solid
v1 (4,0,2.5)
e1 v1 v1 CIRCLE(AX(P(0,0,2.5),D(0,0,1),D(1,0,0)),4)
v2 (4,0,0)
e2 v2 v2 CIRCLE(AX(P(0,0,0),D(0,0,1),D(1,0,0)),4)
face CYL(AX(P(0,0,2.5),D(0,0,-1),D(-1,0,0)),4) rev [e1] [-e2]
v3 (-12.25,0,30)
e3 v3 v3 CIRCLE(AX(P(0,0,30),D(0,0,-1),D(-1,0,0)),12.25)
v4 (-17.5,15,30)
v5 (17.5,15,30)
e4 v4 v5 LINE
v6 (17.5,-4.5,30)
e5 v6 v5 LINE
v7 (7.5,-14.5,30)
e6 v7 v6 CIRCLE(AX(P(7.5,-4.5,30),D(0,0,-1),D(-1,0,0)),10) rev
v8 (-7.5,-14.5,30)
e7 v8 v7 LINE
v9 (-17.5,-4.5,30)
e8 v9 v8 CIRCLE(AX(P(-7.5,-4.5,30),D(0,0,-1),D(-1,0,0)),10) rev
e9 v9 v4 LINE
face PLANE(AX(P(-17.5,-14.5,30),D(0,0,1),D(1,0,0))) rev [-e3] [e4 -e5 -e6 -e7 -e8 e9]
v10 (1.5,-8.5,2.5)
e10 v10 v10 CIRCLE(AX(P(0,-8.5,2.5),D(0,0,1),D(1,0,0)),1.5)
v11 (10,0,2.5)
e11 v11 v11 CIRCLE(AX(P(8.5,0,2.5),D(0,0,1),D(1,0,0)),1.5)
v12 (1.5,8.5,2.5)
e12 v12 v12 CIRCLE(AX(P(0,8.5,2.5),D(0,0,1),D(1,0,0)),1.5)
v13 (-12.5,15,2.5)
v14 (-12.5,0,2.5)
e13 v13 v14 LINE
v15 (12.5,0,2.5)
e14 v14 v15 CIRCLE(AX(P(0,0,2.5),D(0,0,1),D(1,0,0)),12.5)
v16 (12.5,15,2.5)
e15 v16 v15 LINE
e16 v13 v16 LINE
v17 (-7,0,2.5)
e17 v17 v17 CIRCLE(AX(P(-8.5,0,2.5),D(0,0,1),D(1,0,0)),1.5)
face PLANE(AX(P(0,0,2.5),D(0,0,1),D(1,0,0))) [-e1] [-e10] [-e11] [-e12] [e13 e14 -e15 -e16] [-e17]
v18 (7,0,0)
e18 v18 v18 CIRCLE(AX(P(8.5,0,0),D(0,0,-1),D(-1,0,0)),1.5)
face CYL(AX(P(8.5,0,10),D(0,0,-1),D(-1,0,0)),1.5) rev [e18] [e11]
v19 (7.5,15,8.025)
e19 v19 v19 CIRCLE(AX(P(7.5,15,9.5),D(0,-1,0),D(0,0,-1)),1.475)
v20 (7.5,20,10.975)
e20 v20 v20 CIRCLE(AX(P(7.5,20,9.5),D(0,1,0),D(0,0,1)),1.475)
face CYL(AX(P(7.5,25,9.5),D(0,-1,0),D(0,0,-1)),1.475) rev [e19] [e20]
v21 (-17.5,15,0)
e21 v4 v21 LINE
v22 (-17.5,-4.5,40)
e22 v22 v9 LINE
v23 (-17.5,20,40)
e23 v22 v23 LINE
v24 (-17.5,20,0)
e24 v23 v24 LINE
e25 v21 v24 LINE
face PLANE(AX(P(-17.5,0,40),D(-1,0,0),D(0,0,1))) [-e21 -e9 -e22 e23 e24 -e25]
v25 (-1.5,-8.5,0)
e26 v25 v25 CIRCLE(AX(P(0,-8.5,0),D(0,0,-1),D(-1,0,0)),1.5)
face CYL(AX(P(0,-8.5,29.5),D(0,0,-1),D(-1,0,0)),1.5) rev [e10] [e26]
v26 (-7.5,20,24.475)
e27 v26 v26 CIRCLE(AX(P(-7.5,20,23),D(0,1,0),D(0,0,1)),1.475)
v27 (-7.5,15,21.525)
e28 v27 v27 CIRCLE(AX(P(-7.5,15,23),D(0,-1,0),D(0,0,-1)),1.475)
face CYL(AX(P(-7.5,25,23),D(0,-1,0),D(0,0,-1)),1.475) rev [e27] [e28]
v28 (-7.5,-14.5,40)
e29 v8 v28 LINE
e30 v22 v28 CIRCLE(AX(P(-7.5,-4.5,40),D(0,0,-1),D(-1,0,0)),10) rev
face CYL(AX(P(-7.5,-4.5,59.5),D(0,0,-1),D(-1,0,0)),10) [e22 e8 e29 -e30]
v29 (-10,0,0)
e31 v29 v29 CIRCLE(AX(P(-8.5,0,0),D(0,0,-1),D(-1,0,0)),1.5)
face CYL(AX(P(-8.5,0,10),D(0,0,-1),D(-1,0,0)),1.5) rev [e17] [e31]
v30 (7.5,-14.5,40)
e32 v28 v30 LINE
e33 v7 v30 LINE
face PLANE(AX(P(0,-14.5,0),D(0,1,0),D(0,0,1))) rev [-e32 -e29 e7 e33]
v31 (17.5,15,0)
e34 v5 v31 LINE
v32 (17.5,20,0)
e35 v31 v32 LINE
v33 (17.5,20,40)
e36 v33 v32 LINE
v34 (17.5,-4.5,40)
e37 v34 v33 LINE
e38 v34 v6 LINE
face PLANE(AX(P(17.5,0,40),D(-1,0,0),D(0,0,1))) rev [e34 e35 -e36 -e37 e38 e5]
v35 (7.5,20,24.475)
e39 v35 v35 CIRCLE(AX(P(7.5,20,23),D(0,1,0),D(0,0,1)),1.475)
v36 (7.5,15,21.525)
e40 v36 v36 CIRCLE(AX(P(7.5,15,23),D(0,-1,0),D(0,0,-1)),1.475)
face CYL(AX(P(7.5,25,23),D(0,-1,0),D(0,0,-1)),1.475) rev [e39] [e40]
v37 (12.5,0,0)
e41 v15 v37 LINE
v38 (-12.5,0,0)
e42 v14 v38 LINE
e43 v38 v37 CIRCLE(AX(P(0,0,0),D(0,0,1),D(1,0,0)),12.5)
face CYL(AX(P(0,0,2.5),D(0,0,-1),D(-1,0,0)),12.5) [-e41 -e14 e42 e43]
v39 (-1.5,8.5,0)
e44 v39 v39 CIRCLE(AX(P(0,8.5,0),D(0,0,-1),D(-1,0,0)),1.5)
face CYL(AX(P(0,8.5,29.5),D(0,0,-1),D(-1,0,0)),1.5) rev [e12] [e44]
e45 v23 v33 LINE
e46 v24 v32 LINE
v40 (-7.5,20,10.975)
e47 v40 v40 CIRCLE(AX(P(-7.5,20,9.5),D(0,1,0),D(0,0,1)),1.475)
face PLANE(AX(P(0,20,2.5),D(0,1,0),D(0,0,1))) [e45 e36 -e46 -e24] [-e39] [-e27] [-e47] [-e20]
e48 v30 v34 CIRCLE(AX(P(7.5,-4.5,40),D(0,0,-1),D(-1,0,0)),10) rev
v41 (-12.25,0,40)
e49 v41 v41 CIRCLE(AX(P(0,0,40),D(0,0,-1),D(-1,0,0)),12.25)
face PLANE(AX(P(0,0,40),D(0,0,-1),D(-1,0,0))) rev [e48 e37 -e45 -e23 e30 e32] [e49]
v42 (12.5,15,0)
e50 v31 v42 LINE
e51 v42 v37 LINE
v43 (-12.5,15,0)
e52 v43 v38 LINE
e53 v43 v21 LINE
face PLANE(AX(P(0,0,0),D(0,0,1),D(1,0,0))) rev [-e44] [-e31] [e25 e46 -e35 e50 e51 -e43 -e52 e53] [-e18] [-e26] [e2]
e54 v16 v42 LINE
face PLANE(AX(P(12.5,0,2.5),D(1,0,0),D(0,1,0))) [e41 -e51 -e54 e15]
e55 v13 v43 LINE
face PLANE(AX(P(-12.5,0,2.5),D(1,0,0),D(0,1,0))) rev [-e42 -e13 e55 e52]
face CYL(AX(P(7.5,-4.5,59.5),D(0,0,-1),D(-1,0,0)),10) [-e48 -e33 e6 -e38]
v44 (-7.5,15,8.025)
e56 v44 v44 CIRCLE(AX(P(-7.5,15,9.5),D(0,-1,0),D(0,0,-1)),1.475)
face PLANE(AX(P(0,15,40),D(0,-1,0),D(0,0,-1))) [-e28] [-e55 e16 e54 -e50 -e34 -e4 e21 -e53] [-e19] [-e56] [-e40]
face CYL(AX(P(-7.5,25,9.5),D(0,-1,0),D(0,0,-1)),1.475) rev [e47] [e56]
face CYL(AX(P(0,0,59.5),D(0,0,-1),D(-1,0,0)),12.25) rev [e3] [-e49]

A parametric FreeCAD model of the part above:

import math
import FreeCAD as App
import Part
import Sketcher
from FreeCAD import Vector

doc = App.newDocument("Part")
body = doc.addObject("PartDesign::Body", "Body")

# Sketch on XY plane
sketch1 = doc.addObject("Sketcher::SketchObject", "Sketch")
body.addObject(sketch1)
sketch1.AttachmentSupport = (doc.XY_Plane, [""])
sketch1.MapMode = "FlatFace"
sketch1.addGeometry([
    Part.LineSegment(Vector(12.5, 20, 0), Vector(-12.5, 20, 0)),  # 0
    Part.LineSegment(Vector(-12.5, 20, 0), Vector(-12.5, 0, 0)),  # 1
    Part.ArcOfCircle(Part.Circle(Vector(0, 0, 0), Vector(0, 0, 1), 12.5), math.radians(180), math.radians(360)),  # 2
    Part.LineSegment(Vector(12.5, 0, 0), Vector(12.5, 20, 0)),  # 3
    Part.Circle(Vector(0, 0, 0), Vector(0, 0, 1), 4),  # 4
], False)
sketch1.addConstraint([
    Sketcher.Constraint("Coincident", 0, 2, 1, 1),
    Sketcher.Constraint("Tangent", 1, 2, 2, 1),
    Sketcher.Constraint("Tangent", 2, 2, 3, 1),
    Sketcher.Constraint("Coincident", 3, 2, 0, 1),
    Sketcher.Constraint("Horizontal", 0),
    Sketcher.Constraint("Vertical", 1),
    Sketcher.Constraint("Vertical", 3),
    Sketcher.Constraint("Coincident", 2, 3, -1, 1),
    Sketcher.Constraint("Coincident", 4, 3, -1, 1),
    Sketcher.Constraint("Diameter", 4, 8.0),
    Sketcher.Constraint("Radius", 2, 12.5),
    Sketcher.Constraint("DistanceY", 1, 2, 1, 1, 20.0),
])
pad1 = doc.addObject("PartDesign::Pad", "Pad")
body.addObject(pad1)
pad1.Profile = sketch1
pad1.Length = 2.5

# Sketch on XY plane
sketch2 = doc.addObject("Sketcher::SketchObject", "Sketch001")
body.addObject(sketch2)
sketch2.AttachmentSupport = (doc.XY_Plane, [""])
sketch2.MapMode = "FlatFace"
sketch2.addGeometry([
    Part.LineSegment(Vector(18, 20, 0), Vector(18, 15, 0)),
    Part.LineSegment(Vector(18, 15, 0), Vector(-18, 15, 0)),
    Part.LineSegment(Vector(-18, 15, 0), Vector(-18, 20, 0)),
    Part.LineSegment(Vector(-18, 20, 0), Vector(18, 20, 0)),
], False)
sketch2.addConstraint([
    Sketcher.Constraint("Coincident", 0, 2, 1, 1),
    Sketcher.Constraint("Coincident", 1, 2, 2, 1),
    Sketcher.Constraint("Coincident", 2, 2, 3, 1),
    Sketcher.Constraint("Coincident", 3, 2, 0, 1),
    Sketcher.Constraint("Vertical", 0),
    Sketcher.Constraint("Horizontal", 1),
    Sketcher.Constraint("Vertical", 2),
    Sketcher.Constraint("Horizontal", 3),
    Sketcher.Constraint("DistanceX", 1, 2, 1, 1, 35.0),
    Sketcher.Constraint("DistanceY", 0, 2, 0, 1, 5.0),
    Sketcher.Constraint("DistanceY", -1, 1, 0, 2, 15.0),
    Sketcher.Constraint("DistanceX", -1, 1, 0, 2, 17.5),
])
pad2 = doc.addObject("PartDesign::Pad", "Pad001")
body.addObject(pad2)
pad2.Profile = sketch2
pad2.Length = 40

# Sketch on XZ plane
sketch3 = doc.addObject("Sketcher::SketchObject", "Sketch002")
body.addObject(sketch3)
sketch3.AttachmentSupport = (doc.XZ_Plane, [""])
sketch3.MapMode = "FlatFace"
sketch3.AttachmentOffset = App.Placement(Vector(0, 0, -15), App.Rotation())
sketch3.addGeometry([
    Part.LineSegment(Vector(-18, 40, 0), Vector(-18, 30, 0)),
    Part.LineSegment(Vector(-18, 30, 0), Vector(18, 30, 0)),
    Part.LineSegment(Vector(18, 30, 0), Vector(18, 40, 0)),
    Part.LineSegment(Vector(18, 40, 0), Vector(-18, 40, 0)),
], False)
sketch3.addConstraint([
    Sketcher.Constraint("Coincident", 0, 2, 1, 1),
    Sketcher.Constraint("Coincident", 1, 2, 2, 1),
    Sketcher.Constraint("Coincident", 2, 2, 3, 1),
    Sketcher.Constraint("Coincident", 3, 2, 0, 1),
    Sketcher.Constraint("Vertical", 0),
    Sketcher.Constraint("Horizontal", 1),
    Sketcher.Constraint("Vertical", 2),
    Sketcher.Constraint("Horizontal", 3),
    Sketcher.Constraint("DistanceX", 1, 1, 1, 2, 35.0),
    Sketcher.Constraint("DistanceY", 0, 2, 0, 1, 10.0),
    Sketcher.Constraint("DistanceY", -1, 1, 0, 2, 30.0),
    Sketcher.Constraint("DistanceX", 0, 2, -1, 1, 17.5),
])
pad3 = doc.addObject("PartDesign::Pad", "Pad002")
body.addObject(pad3)
pad3.Profile = sketch3
pad3.Length = 29.5

# Sketch on XY plane
sketch4 = doc.addObject("Sketcher::SketchObject", "Sketch003")
body.addObject(sketch4)
sketch4.AttachmentSupport = (doc.XY_Plane, [""])
sketch4.MapMode = "FlatFace"
sketch4.AttachmentOffset = App.Placement(Vector(0, 0, 30), App.Rotation())
sketch4.addGeometry([
    Part.Circle(Vector(0, 0, 0), Vector(0, 0, 1), 12),  # 0
    Part.LineSegment(Vector(-18, -14, 0), Vector(-18, -4, 0)),  # 1
    Part.ArcOfCircle(Part.Circle(Vector(-8, -4, 0), Vector(0, 0, 1), 10), math.radians(180), math.radians(270)),  # 2
    Part.LineSegment(Vector(-8, -14, 0), Vector(-18, -14, 0)),  # 3
    Part.ArcOfCircle(Part.Circle(Vector(8, -4, 0), Vector(0, 0, 1), 10), math.radians(-90), math.radians(0)),  # 4
    Part.LineSegment(Vector(18, -4, 0), Vector(18, -14, 0)),  # 5
    Part.LineSegment(Vector(18, -14, 0), Vector(8, -14, 0)),  # 6
], False)
sketch4.addConstraint([
    Sketcher.Constraint("Tangent", 1, 2, 2, 1),
    Sketcher.Constraint("Tangent", 2, 2, 3, 1),
    Sketcher.Constraint("Coincident", 3, 2, 1, 1),
    Sketcher.Constraint("Tangent", 4, 2, 5, 1),
    Sketcher.Constraint("Coincident", 5, 2, 6, 1),
    Sketcher.Constraint("Tangent", 6, 2, 4, 1),
    Sketcher.Constraint("Vertical", 1),
    Sketcher.Constraint("Horizontal", 3),
    Sketcher.Constraint("Vertical", 5),
    Sketcher.Constraint("Horizontal", 6),
    Sketcher.Constraint("Coincident", 0, 3, -1, 1),
    Sketcher.Constraint("Equal", 2, 4),
    Sketcher.Constraint("Symmetric", 2, 3, 4, 3, -2),
    Sketcher.Constraint("Radius", 2, 10.0),
    Sketcher.Constraint("Diameter", 0, 24.5),
    Sketcher.Constraint("DistanceX", 2, 3, 4, 3, 15.0),
    Sketcher.Constraint("DistanceY", 2, 3, -1, 1, 4.5),
])
pocket1 = doc.addObject("PartDesign::Pocket", "Pocket")
body.addObject(pocket1)
pocket1.Profile = sketch4
pocket1.Length = 29.5
pocket1.Reversed = True

# Sketch on XY plane
sketch5 = doc.addObject("Sketcher::SketchObject", "Sketch004")
body.addObject(sketch5)
sketch5.AttachmentSupport = (doc.XY_Plane, [""])
sketch5.MapMode = "FlatFace"
sketch5.addGeometry([
    Part.Circle(Vector(0, 8.5, 0), Vector(0, 0, 1), 1.5),
    Part.Circle(Vector(0, -8.5, 0), Vector(0, 0, 1), 1.5),
], False)
sketch5.addConstraint([
    Sketcher.Constraint("Equal", 0, 1),
    Sketcher.Constraint("Symmetric", 0, 3, 1, 3, -1, 1),
    Sketcher.Constraint("PointOnObject", 0, 3, -2),
    Sketcher.Constraint("Diameter", 0, 3.0),
    Sketcher.Constraint("DistanceY", 1, 3, 0, 3, 17.0),
])
pocket2 = doc.addObject("PartDesign::Pocket", "Pocket001")
body.addObject(pocket2)
pocket2.Profile = sketch5
pocket2.Length = 29.5
pocket2.Reversed = True

# Sketch on XZ plane
sketch6 = doc.addObject("Sketcher::SketchObject", "Sketch005")
body.addObject(sketch6)
sketch6.AttachmentSupport = (doc.XZ_Plane, [""])
sketch6.MapMode = "FlatFace"
sketch6.AttachmentOffset = App.Placement(Vector(0, 0, -15), App.Rotation())
sketch6.addGeometry([
    Part.Circle(Vector(7.5, 23, 0), Vector(0, 0, 1), 1.5),
    Part.Circle(Vector(-7.5, 23, 0), Vector(0, 0, 1), 1.5),
    Part.Circle(Vector(7.5, 9.5, 0), Vector(0, 0, 1), 1.5),
    Part.Circle(Vector(-7.5, 9.5, 0), Vector(0, 0, 1), 1.5),
], False)
sketch6.addConstraint([
    Sketcher.Constraint("Equal", 0, 1),
    Sketcher.Constraint("Equal", 1, 2),
    Sketcher.Constraint("Equal", 2, 3),
    Sketcher.Constraint("Symmetric", 0, 3, 1, 3, -2),
    Sketcher.Constraint("Symmetric", 2, 3, 3, 3, -2),
    Sketcher.Constraint("Vertical", 0, 3, 2, 3),
    Sketcher.Constraint("Diameter", 0, 2.95),
    Sketcher.Constraint("DistanceY", -1, 1, 0, 3, 23.0),
    Sketcher.Constraint("DistanceX", 1, 3, 0, 3, 15.0),
    Sketcher.Constraint("DistanceY", -1, 1, 2, 3, 9.5),
])
pocket3 = doc.addObject("PartDesign::Pocket", "Pocket002")
body.addObject(pocket3)
pocket3.Profile = sketch6
pocket3.Length = 10

# Sketch on XY plane
sketch7 = doc.addObject("Sketcher::SketchObject", "Sketch006")
body.addObject(sketch7)
sketch7.AttachmentSupport = (doc.XY_Plane, [""])
sketch7.MapMode = "FlatFace"
sketch7.addGeometry([
    Part.Circle(Vector(8.5, 0, 0), Vector(0, 0, 1), 1.5),
    Part.Circle(Vector(-8.5, 0, 0), Vector(0, 0, 1), 1.5),
], False)
sketch7.addConstraint([
    Sketcher.Constraint("Equal", 0, 1),
    Sketcher.Constraint("Symmetric", 0, 3, 1, 3, -1, 1),
    Sketcher.Constraint("PointOnObject", 0, 3, -1),
    Sketcher.Constraint("Diameter", 0, 3.0),
    Sketcher.Constraint("DistanceX", 1, 3, 0, 3, 17.0),
])
pocket4 = doc.addObject("PartDesign::Pocket", "Pocket003")
body.addObject(pocket4)
pocket4.Profile = sketch7
pocket4.Length = 10
pocket4.Reversed = True

doc.recompute()
